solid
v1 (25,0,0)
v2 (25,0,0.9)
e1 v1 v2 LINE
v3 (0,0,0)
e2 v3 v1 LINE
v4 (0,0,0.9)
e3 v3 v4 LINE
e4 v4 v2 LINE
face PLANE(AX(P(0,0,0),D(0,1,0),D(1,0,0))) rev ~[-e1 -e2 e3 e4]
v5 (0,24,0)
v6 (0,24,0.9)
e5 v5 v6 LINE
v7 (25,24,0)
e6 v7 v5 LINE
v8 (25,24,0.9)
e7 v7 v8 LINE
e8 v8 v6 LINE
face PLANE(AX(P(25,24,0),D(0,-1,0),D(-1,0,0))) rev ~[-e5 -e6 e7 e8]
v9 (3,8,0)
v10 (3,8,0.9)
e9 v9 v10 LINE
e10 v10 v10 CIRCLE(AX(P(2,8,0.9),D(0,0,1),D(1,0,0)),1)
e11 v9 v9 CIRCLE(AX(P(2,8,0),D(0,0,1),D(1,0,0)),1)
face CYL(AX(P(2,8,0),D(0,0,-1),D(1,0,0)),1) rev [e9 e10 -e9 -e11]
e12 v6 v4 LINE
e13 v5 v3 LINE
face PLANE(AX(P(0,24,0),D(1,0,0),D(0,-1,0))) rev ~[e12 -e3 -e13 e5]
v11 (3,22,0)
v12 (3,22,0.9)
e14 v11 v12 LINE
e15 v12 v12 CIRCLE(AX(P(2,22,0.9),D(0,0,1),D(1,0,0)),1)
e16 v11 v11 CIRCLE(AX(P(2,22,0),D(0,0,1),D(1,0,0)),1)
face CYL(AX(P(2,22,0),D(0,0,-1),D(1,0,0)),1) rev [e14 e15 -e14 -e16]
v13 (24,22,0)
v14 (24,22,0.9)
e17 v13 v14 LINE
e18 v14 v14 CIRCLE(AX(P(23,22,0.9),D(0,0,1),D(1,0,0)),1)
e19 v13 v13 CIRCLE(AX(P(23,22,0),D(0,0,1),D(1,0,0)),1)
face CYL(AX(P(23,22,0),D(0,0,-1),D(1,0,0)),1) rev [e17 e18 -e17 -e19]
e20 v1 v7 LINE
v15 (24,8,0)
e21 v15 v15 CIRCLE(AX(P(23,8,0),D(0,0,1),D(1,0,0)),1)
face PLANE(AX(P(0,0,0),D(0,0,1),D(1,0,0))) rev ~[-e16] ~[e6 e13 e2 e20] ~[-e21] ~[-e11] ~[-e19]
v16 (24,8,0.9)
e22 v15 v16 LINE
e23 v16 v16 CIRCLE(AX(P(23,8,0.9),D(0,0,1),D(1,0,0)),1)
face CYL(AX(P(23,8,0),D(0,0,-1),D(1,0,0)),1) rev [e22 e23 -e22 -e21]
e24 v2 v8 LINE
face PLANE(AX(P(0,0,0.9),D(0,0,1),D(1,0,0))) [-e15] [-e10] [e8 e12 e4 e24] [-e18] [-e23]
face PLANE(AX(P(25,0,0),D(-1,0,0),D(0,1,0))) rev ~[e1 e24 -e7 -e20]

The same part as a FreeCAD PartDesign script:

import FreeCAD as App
import Part
import Sketcher
from FreeCAD import Vector


def add_polygon(sketch, points):
    """Adds a closed chain of lines whose ends are joined by coincident constraints."""
    first, n = sketch.GeometryCount, len(points)
    for a, b in zip(points, points[1:] + points[:1]):
        sketch.addGeometry(Part.LineSegment(App.Vector(*a, 0), App.Vector(*b, 0)), False)
    for i in range(n):
        sketch.addConstraint(Sketcher.Constraint("Coincident", first + i, 2, first + (i + 1) % n, 1))

doc = App.newDocument("Part")
body = doc.addObject("PartDesign::Body", "Body")

# Sketch on XY plane
sketch1 = body.newObject("Sketcher::SketchObject", "Sketch")
sketch1.AttachmentSupport = (doc.getObject("XY_Plane"), [""])
sketch1.MapMode = "FlatFace"
add_polygon(sketch1, [(0, 24), (0, 0), (25, 0), (25, 24)])  # lines 0-3
sketch1.addGeometry(Part.Circle(Vector(2, 8, 0), Vector(0, 0, 1), 1), False)  # 4
sketch1.addGeometry(Part.Circle(Vector(23, 8, 0), Vector(0, 0, 1), 1), False)  # 5
sketch1.addGeometry(Part.Circle(Vector(2, 22, 0), Vector(0, 0, 1), 1), False)  # 6
sketch1.addGeometry(Part.Circle(Vector(23, 22, 0), Vector(0, 0, 1), 1), False)  # 7
sketch1.addConstraint([
    Sketcher.Constraint("Vertical", 0),
    Sketcher.Constraint("Horizontal", 1),
    Sketcher.Constraint("Vertical", 2),
    Sketcher.Constraint("Horizontal", 3),
    Sketcher.Constraint("Coincident", 0, 2, -1, 1),
    Sketcher.Constraint("Equal", 4, 5),
    Sketcher.Constraint("Equal", 5, 6),
    Sketcher.Constraint("Equal", 6, 7),
    Sketcher.Constraint("Horizontal", 4, 3, 5, 3),
    Sketcher.Constraint("Horizontal", 6, 3, 7, 3),
    Sketcher.Constraint("Vertical", 4, 3, 6, 3),
    Sketcher.Constraint("Vertical", 5, 3, 7, 3),
    Sketcher.Constraint("Diameter", 4, 2.0),
    Sketcher.Constraint("DistanceX", 1, 1, 1, 2, 25.0),
    Sketcher.Constraint("DistanceY", 0, 2, 0, 1, 24.0),
    Sketcher.Constraint("DistanceX", -1, 1, 4, 3, 2.0),
    Sketcher.Constraint("DistanceY", -1, 1, 4, 3, 8.0),
    Sketcher.Constraint("DistanceX", 5, 3, 1, 2, 2.0),
    Sketcher.Constraint("DistanceY", 7, 3, 2, 2, 2.0),
])
pad1 = body.newObject("PartDesign::Pad", "Pad")
pad1.Profile = sketch1
pad1.Length = 0.9

doc.recompute()
